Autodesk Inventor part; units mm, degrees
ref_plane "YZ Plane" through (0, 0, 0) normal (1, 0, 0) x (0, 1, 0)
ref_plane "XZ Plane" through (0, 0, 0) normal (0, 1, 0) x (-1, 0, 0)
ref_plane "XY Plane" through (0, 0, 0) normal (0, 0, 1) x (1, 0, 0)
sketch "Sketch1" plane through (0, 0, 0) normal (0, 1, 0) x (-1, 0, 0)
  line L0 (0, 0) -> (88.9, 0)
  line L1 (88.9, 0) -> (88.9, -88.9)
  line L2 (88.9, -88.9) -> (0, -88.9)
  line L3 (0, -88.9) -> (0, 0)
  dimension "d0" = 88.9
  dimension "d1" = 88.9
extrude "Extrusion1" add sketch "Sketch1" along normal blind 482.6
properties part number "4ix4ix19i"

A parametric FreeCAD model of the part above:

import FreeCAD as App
import Part
import Sketcher
Q = App.Units.Quantity

doc = App.newDocument("Part")
params = doc.addObject("Spreadsheet::Sheet", "Params")
for row, (alias, value) in enumerate([
    ("sketch1_width", "3.5 in"),
    ("pad1_length", "19 in"),
], start=1):
    params.set(f"A{row}", alias)
    params.set(f"B{row}", "=" + value)
    params.setAlias(f"B{row}", alias)

body = doc.addObject("PartDesign::Body", "Body")

# Sketch on XZ plane
sketch1 = body.newObject("Sketcher::SketchObject", "Sketch")
sketch1.AttachmentSupport = (doc.getObject("XZ_Plane"), [""])
sketch1.MapMode = "FlatFace"
sketch1.addGeometry(Part.LineSegment(App.Vector(-88.9, 0, 0), App.Vector(0, 0, 0)), False)
sketch1.addGeometry(Part.LineSegment(App.Vector(0, 0, 0), App.Vector(0, -88.9, 0)), False)
sketch1.addGeometry(Part.LineSegment(App.Vector(0, -88.9, 0), App.Vector(-88.9, -88.9, 0)), False)
sketch1.addGeometry(Part.LineSegment(App.Vector(-88.9, -88.9, 0), App.Vector(-88.9, 0, 0)), False)
sketch1.addConstraint(Sketcher.Constraint("Coincident", 0, 2, 1, 1))
sketch1.addConstraint(Sketcher.Constraint("Coincident", 1, 2, 2, 1))
sketch1.addConstraint(Sketcher.Constraint("Coincident", 2, 2, 3, 1))
sketch1.addConstraint(Sketcher.Constraint("Coincident", 3, 2, 0, 1))
sketch1.addConstraint(Sketcher.Constraint("Horizontal", 0))
sketch1.addConstraint(Sketcher.Constraint("Vertical", 1))
sketch1.addConstraint(Sketcher.Constraint("Horizontal", 2))
sketch1.addConstraint(Sketcher.Constraint("Vertical", 3))
sketch1.addConstraint(Sketcher.Constraint("Coincident", 0, 2, -1, 1))
sketch1.addConstraint(Sketcher.Constraint("Equal", 2, 1))
sketch1.addConstraint(Sketcher.Constraint("DistanceX", 0, 1, 0, 2, Q("3.5 in")))
sketch1.setExpression("Constraints[10]", "Params.sketch1_width")
pad1 = body.newObject("PartDesign::Pad", "Pad")
pad1.Profile = sketch1
pad1.setExpression("Length", "Params.pad1_length")
pad1.Reversed = True

doc.recompute()
